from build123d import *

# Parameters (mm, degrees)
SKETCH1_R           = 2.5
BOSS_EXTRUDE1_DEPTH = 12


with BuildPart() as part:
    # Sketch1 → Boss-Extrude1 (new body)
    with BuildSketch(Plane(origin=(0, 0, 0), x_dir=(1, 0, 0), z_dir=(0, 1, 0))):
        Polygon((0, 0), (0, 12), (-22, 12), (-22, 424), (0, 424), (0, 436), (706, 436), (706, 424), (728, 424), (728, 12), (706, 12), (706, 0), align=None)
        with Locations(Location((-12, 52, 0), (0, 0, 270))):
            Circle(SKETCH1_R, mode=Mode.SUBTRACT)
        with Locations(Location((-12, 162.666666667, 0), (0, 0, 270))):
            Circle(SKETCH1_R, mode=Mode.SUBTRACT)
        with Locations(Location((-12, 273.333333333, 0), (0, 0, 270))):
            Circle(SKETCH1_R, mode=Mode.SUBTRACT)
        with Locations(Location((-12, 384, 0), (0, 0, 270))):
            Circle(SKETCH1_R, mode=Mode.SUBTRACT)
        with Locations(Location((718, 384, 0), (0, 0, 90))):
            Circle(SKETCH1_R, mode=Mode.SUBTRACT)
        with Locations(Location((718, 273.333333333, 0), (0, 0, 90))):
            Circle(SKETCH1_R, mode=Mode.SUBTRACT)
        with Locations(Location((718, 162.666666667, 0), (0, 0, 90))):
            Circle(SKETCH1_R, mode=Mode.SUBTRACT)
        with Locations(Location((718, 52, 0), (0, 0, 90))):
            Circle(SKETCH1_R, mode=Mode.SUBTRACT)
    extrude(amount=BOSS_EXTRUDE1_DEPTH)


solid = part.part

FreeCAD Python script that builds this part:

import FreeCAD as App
import Part
import Sketcher
from FreeCAD import Vector
Q = App.Units.Quantity

doc = App.newDocument("Part")
body = doc.addObject("PartDesign::Body", "Body")

sketch1 = body.newObject("Sketcher::SketchObject", "Sketch")
sketch1.AttachmentSupport = (doc.getObject("XZ_Plane"), [""])
sketch1.MapMode = "FlatFace"
sketch1.addGeometry(Part.LineSegment(Vector(0, -12, 0), Vector(0, 0, 0)), False)
sketch1.addGeometry(Part.LineSegment(Vector(0, 0, 0), Vector(706, 0, 0)), False)
sketch1.addGeometry(Part.LineSegment(Vector(706, 0, 0), Vector(706, -12, 0)), False)
sketch1.addGeometry(Part.LineSegment(Vector(706, -12, 0), Vector(728, -12, 0)), False)
sketch1.addGeometry(Part.LineSegment(Vector(728, -12, 0), Vector(728, -424, 0)), False)
sketch1.addGeometry(Part.LineSegment(Vector(728, -424, 0), Vector(706, -424, 0)), False)
sketch1.addGeometry(Part.LineSegment(Vector(706, -424, 0), Vector(706, -436, 0)), False)
sketch1.addGeometry(Part.LineSegment(Vector(706, -436, 0), Vector(0, -436, 0)), False)
sketch1.addGeometry(Part.LineSegment(Vector(0, -436, 0), Vector(0, -424, 0)), False)
sketch1.addGeometry(Part.LineSegment(Vector(0, -424, 0), Vector(-22, -424, 0)), False)
sketch1.addGeometry(Part.LineSegment(Vector(-22, -424, 0), Vector(-22, -12, 0)), False)
sketch1.addGeometry(Part.LineSegment(Vector(-22, -12, 0), Vector(0, -12, 0)), False)
sketch1.addGeometry(Part.Circle(Vector(718, -52, 0), Vector(0, 0, 1), 2.5), False)
sketch1.addGeometry(Part.Circle(Vector(718, -162.7, 0), Vector(0, 0, 1), 2.5), False)
sketch1.addGeometry(Part.Circle(Vector(-12, -52, 0), Vector(0, 0, 1), 2.5), False)
sketch1.addGeometry(Part.Circle(Vector(-12, -162.7, 0), Vector(0, 0, 1), 2.5), False)
sketch1.addGeometry(Part.Circle(Vector(718, -273.3, 0), Vector(0, 0, 1), 2.5), False)
sketch1.addGeometry(Part.Circle(Vector(718, -384, 0), Vector(0, 0, 1), 2.5), False)
sketch1.addGeometry(Part.Circle(Vector(-12, -273.3, 0), Vector(0, 0, 1), 2.5), False)
sketch1.addGeometry(Part.Circle(Vector(-12, -384, 0), Vector(0, 0, 1), 2.5), False)
sketch1.addConstraint(Sketcher.Constraint("Coincident", 0, 2, 1, 1))
sketch1.addConstraint(Sketcher.Constraint("Coincident", 1, 2, 2, 1))
sketch1.addConstraint(Sketcher.Constraint("Coincident", 2, 2, 3, 1))
sketch1.addConstraint(Sketcher.Constraint("Coincident", 3, 2, 4, 1))
sketch1.addConstraint(Sketcher.Constraint("Coincident", 4, 2, 5, 1))
sketch1.addConstraint(Sketcher.Constraint("Coincident", 5, 2, 6, 1))
sketch1.addConstraint(Sketcher.Constraint("Coincident", 6, 2, 7, 1))
sketch1.addConstraint(Sketcher.Constraint("Coincident", 7, 2, 8, 1))
sketch1.addConstraint(Sketcher.Constraint("Coincident", 8, 2, 9, 1))
sketch1.addConstraint(Sketcher.Constraint("Coincident", 9, 2, 10, 1))
sketch1.addConstraint(Sketcher.Constraint("Coincident", 10, 2, 11, 1))
sketch1.addConstraint(Sketcher.Constraint("Coincident", 11, 2, 0, 1))
sketch1.addConstraint(Sketcher.Constraint("Vertical", 0))
sketch1.addConstraint(Sketcher.Constraint("Horizontal", 1))
sketch1.addConstraint(Sketcher.Constraint("Vertical", 2))
sketch1.addConstraint(Sketcher.Constraint("Horizontal", 3))
sketch1.addConstraint(Sketcher.Constraint("Vertical", 4))
sketch1.addConstraint(Sketcher.Constraint("Horizontal", 5))
sketch1.addConstraint(Sketcher.Constraint("Vertical", 6))
sketch1.addConstraint(Sketcher.Constraint("Horizontal", 7))
sketch1.addConstraint(Sketcher.Constraint("Vertical", 8))
sketch1.addConstraint(Sketcher.Constraint("Horizontal", 9))
sketch1.addConstraint(Sketcher.Constraint("Vertical", 10))
sketch1.addConstraint(Sketcher.Constraint("Horizontal", 11))
sketch1.addConstraint(Sketcher.Constraint("Coincident", 0, 2, -1, 1))
sketch1.addConstraint(Sketcher.Constraint("Equal", 12, 13))
sketch1.addConstraint(Sketcher.Constraint("Equal", 13, 14))
sketch1.addConstraint(Sketcher.Constraint("Equal", 14, 15))
sketch1.addConstraint(Sketcher.Constraint("Equal", 15, 16))
sketch1.addConstraint(Sketcher.Constraint("Equal", 16, 17))
sketch1.addConstraint(Sketcher.Constraint("Equal", 17, 18))
sketch1.addConstraint(Sketcher.Constraint("Equal", 18, 19))
sketch1.addConstraint(Sketcher.Constraint("PointOnObject", 7, 2, -2))
sketch1.addConstraint(Sketcher.Constraint("Horizontal", 12, 3, 14, 3))
sketch1.addConstraint(Sketcher.Constraint("Horizontal", 13, 3, 15, 3))
sketch1.addConstraint(Sketcher.Constraint("Horizontal", 16, 3, 18, 3))
sketch1.addConstraint(Sketcher.Constraint("Horizontal", 17, 3, 19, 3))
sketch1.addConstraint(Sketcher.Constraint("Horizontal", 5, 2, 8, 2))
sketch1.addConstraint(Sketcher.Constraint("Horizontal", 3, 2, 10, 2))
sketch1.addConstraint(Sketcher.Constraint("Vertical", 12, 3, 13, 3))
sketch1.addConstraint(Sketcher.Constraint("Vertical", 14, 3, 15, 3))
sketch1.addConstraint(Sketcher.Constraint("Vertical", 13, 3, 16, 3))
sketch1.addConstraint(Sketcher.Constraint("Vertical", 16, 3, 17, 3))
sketch1.addConstraint(Sketcher.Constraint("Vertical", 15, 3, 18, 3))
sketch1.addConstraint(Sketcher.Constraint("Vertical", 18, 3, 19, 3))
sketch1.addConstraint(Sketcher.Constraint("Vertical", 2, 2, 5, 2))
sketch1.addConstraint(Sketcher.Constraint("Equal", 5, 9))
sketch1.addConstraint(Sketcher.Constraint("Equal", 2, 6))
sketch1.addConstraint(Sketcher.Constraint("Diameter", 12, Q("5 mm")))
sketch1.addConstraint(Sketcher.Constraint("DistanceX", 1, 1, 1, 2, Q("706 mm")))
sketch1.addConstraint(Sketcher.Constraint("DistanceX", 3, 1, 3, 2, Q("22 mm")))
sketch1.addConstraint(Sketcher.Constraint("DistanceY", 0, 1, 0, 2, Q("12 mm")))
sketch1.addConstraint(Sketcher.Constraint("DistanceY", 4, 2, 4, 1, Q("412 mm")))
sketch1.addConstraint(Sketcher.Constraint("DistanceX", -1, 1, 12, 3, Q("718 mm")))
sketch1.addConstraint(Sketcher.Constraint("DistanceY", 12, 3, -1, 1, Q("52 mm")))
sketch1.addConstraint(Sketcher.Constraint("DistanceX", 14, 3, -1, 1, Q("12 mm")))
sketch1.addConstraint(Sketcher.Constraint("DistanceY", 17, 3, -1, 1, Q("384 mm")))
sketch1.addConstraint(Sketcher.Constraint("DistanceY", 13, 3, -1, 1, Q("162.666667 mm")))
sketch1.addConstraint(Sketcher.Constraint("DistanceY", 16, 3, -1, 1, Q("273.333333 mm")))
pad1 = body.newObject("PartDesign::Pad", "Pad")
pad1.Profile = sketch1
pad1.Length = 12
pad1.Reversed = True

doc.recompute()
